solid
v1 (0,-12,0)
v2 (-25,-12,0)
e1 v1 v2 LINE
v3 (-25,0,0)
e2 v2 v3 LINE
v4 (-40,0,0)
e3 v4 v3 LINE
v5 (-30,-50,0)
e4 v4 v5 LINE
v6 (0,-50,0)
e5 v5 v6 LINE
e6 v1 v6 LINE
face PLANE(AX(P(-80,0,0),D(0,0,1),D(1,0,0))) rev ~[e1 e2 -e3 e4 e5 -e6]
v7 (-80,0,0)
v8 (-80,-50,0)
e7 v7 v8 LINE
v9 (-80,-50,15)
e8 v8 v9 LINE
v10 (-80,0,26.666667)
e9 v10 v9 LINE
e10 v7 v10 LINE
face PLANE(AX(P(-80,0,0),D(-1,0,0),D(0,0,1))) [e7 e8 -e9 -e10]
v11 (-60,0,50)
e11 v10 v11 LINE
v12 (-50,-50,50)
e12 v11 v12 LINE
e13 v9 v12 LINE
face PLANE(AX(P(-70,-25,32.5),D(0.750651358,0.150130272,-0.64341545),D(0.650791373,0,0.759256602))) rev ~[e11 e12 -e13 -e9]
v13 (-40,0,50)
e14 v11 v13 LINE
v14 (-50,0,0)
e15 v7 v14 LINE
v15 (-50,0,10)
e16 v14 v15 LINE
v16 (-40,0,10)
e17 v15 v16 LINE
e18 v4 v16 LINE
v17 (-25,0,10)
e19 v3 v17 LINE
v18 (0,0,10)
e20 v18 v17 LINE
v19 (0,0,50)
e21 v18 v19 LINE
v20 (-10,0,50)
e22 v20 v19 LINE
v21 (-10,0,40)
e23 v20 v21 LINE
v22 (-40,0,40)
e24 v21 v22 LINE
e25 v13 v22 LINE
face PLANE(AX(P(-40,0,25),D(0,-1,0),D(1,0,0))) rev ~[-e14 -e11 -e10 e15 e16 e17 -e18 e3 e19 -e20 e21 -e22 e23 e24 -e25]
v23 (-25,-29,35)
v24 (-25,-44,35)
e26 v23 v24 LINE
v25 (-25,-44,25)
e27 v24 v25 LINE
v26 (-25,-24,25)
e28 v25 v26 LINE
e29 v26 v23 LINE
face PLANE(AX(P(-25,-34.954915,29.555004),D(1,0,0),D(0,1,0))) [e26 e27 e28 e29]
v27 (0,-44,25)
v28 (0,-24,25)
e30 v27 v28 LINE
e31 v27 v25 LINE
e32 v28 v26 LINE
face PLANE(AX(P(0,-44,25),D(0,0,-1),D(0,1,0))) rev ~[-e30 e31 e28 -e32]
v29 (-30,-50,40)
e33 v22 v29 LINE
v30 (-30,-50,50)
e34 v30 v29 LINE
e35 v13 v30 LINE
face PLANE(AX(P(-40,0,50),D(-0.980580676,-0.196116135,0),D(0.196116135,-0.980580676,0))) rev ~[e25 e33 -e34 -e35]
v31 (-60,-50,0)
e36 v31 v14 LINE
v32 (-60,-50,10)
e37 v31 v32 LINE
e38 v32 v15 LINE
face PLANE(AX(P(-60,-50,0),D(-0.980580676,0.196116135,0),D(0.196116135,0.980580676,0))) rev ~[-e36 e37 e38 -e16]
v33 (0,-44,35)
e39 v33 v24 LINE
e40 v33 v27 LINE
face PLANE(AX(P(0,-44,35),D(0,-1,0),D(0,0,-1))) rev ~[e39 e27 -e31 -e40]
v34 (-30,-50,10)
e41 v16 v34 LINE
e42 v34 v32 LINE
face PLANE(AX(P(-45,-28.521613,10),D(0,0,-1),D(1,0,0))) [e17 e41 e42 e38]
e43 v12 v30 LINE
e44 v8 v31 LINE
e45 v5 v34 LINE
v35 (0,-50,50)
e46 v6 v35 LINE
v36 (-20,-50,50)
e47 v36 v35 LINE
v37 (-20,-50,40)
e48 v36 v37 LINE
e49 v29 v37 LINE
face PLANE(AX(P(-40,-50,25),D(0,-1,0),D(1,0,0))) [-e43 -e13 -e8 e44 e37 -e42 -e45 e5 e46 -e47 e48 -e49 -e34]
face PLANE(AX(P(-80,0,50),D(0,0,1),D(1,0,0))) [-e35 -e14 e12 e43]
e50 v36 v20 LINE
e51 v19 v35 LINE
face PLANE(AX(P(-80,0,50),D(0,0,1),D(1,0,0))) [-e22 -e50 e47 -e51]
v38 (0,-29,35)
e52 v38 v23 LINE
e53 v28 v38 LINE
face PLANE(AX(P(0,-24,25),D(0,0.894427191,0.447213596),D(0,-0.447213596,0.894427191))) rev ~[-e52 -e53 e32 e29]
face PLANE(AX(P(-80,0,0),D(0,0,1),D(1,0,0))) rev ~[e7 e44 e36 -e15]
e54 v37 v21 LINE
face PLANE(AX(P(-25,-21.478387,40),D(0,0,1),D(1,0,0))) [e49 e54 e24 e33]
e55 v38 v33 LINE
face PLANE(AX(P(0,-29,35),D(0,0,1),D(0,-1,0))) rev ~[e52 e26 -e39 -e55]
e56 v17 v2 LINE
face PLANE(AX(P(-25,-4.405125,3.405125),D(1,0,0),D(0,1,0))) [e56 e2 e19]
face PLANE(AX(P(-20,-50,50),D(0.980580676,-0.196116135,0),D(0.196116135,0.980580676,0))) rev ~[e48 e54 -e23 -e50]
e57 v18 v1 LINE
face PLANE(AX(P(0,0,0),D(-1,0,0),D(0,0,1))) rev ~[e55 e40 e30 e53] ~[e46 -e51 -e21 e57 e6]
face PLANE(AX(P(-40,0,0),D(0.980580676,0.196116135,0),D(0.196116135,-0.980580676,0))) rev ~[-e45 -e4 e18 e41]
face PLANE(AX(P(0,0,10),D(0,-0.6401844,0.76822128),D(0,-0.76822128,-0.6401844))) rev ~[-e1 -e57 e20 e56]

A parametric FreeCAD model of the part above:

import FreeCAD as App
import Part
import Sketcher

V = App.Vector
Q = App.Units.Quantity

doc = App.newDocument("Part")
body = doc.addObject("PartDesign::Body", "Body")

# Sketch on XZ plane
sketch1 = body.newObject("Sketcher::SketchObject", "Sketch")
sketch1.AttachmentSupport = (doc.getObject("XZ_Plane"), [""])
sketch1.MapMode = "FlatFace"
sketch1.addGeometry([
    Part.LineSegment(V(-80, 50, 0), V(-80, 0, 0)),
    Part.LineSegment(V(-80, 0, 0), V(0, 0, 0)),
    Part.LineSegment(V(0, 0, 0), V(0, 50, 0)),
    Part.LineSegment(V(0, 50, 0), V(-80, 50, 0)),
], False)
sketch1.addConstraint([
    Sketcher.Constraint("Coincident", 0, 2, 1, 1),
    Sketcher.Constraint("Coincident", 1, 2, 2, 1),
    Sketcher.Constraint("Coincident", 2, 2, 3, 1),
    Sketcher.Constraint("Coincident", 3, 2, 0, 1),
    Sketcher.Constraint("Vertical", 0),
    Sketcher.Constraint("Horizontal", 1),
    Sketcher.Constraint("Vertical", 2),
    Sketcher.Constraint("Horizontal", 3),
    Sketcher.Constraint("Coincident", 1, 2, -1, 1),
    Sketcher.Constraint("DistanceX", 1, 1, 1, 2, Q("80 mm")),
    Sketcher.Constraint("DistanceY", 0, 2, 0, 1, Q("50 mm")),
])
pad1 = body.newObject("PartDesign::Pad", "Pad")
pad1.Profile = sketch1
pad1.Length = 50

# Sketch on XY plane
sketch2 = body.newObject("Sketcher::SketchObject", "Sketch001")
sketch2.AttachmentSupport = (doc.getObject("XY_Plane"), [""])
sketch2.MapMode = "FlatFace"
sketch2.addGeometry([
    Part.LineSegment(V(-30, -50, 0), V(-60, -50, 0)),
    Part.LineSegment(V(-60, -50, 0), V(-50, 0, 0)),
    Part.LineSegment(V(-50, 0, 0), V(-40, 0, 0)),
    Part.LineSegment(V(-40, 0, 0), V(-30, -50, 0)),
], False)
sketch2.addConstraint([
    Sketcher.Constraint("Coincident", 0, 2, 1, 1),
    Sketcher.Constraint("Coincident", 1, 2, 2, 1),
    Sketcher.Constraint("Coincident", 2, 2, 3, 1),
    Sketcher.Constraint("Coincident", 3, 2, 0, 1),
    Sketcher.Constraint("Horizontal", 0),
    Sketcher.Constraint("Horizontal", 2),
    Sketcher.Constraint("PointOnObject", 1, 2, -1),
    Sketcher.Constraint("Equal", 1, 3),
    Sketcher.Constraint("DistanceX", 0, 2, 0, 1, Q("30 mm")),
    Sketcher.Constraint("DistanceX", 2, 1, 2, 2, Q("10 mm")),
    Sketcher.Constraint("DistanceX", 0, 2, -1, 1, Q("60 mm")),
    Sketcher.Constraint("DistanceY", 0, 2, -1, 1, Q("50 mm")),
])
pocket1 = body.newObject("PartDesign::Pocket", "Pocket")
pocket1.Profile = sketch2
pocket1.Length = 10
pocket1.Reversed = True

# Sketch on XY plane
sketch3 = body.newObject("Sketcher::SketchObject", "Sketch002")
sketch3.AttachmentSupport = (doc.getObject("XY_Plane"), [""])
sketch3.MapMode = "FlatFace"
sketch3.AttachmentOffset = App.Placement(V(0, 0, 50), App.Rotation())
sketch3.addGeometry([
    Part.LineSegment(V(-40, 0, 0), V(-30, -50, 0)),
    Part.LineSegment(V(-30, -50, 0), V(-20, -50, 0)),
    Part.LineSegment(V(-20, -50, 0), V(-10, 0, 0)),
    Part.LineSegment(V(-10, 0, 0), V(-40, 0, 0)),
], False)
sketch3.addConstraint([
    Sketcher.Constraint("Coincident", 0, 2, 1, 1),
    Sketcher.Constraint("Coincident", 1, 2, 2, 1),
    Sketcher.Constraint("Coincident", 2, 2, 3, 1),
    Sketcher.Constraint("Coincident", 3, 2, 0, 1),
    Sketcher.Constraint("Horizontal", 1),
    Sketcher.Constraint("Horizontal", 3),
    Sketcher.Constraint("PointOnObject", 2, 2, -1),
    Sketcher.Constraint("Equal", 0, 2),
    Sketcher.Constraint("DistanceX", 1, 1, 1, 2, Q("10 mm")),
    Sketcher.Constraint("DistanceX", 3, 2, 3, 1, Q("30 mm")),
    Sketcher.Constraint("DistanceX", 0, 2, -1, 1, Q("30 mm")),
    Sketcher.Constraint("DistanceY", 0, 2, -1, 1, Q("50 mm")),
])
pocket2 = body.newObject("PartDesign::Pocket", "Pocket001")
pocket2.Profile = sketch3
pocket2.Length = 10

# Sketch on YZ plane
sketch4 = body.newObject("Sketcher::SketchObject", "Sketch003")
sketch4.AttachmentSupport = (doc.getObject("YZ_Plane"), [""])
sketch4.MapMode = "FlatFace"
sketch4.addGeometry([
    Part.LineSegment(V(-29, 35, 0), V(-44, 35, 0)),
    Part.LineSegment(V(-44, 35, 0), V(-44, 25, 0)),
    Part.LineSegment(V(-44, 25, 0), V(-24, 25, 0)),
    Part.LineSegment(V(-24, 25, 0), V(-29, 35, 0)),
], False)
sketch4.addConstraint([
    Sketcher.Constraint("Coincident", 0, 2, 1, 1),
    Sketcher.Constraint("Coincident", 1, 2, 2, 1),
    Sketcher.Constraint("Coincident", 2, 2, 3, 1),
    Sketcher.Constraint("Coincident", 3, 2, 0, 1),
    Sketcher.Constraint("Horizontal", 0),
    Sketcher.Constraint("Vertical", 1),
    Sketcher.Constraint("Horizontal", 2),
    Sketcher.Constraint("DistanceX", 0, 2, 0, 1, Q("15 mm")),
    Sketcher.Constraint("DistanceX", 2, 1, 2, 2, Q("20 mm")),
    Sketcher.Constraint("DistanceY", 1, 2, 1, 1, Q("10 mm")),
    Sketcher.Constraint("DistanceX", 0, 2, -1, 1, Q("44 mm")),
    Sketcher.Constraint("DistanceY", -1, 1, 0, 2, Q("35 mm")),
])
pocket3 = body.newObject("PartDesign::Pocket", "Pocket002")
pocket3.Profile = sketch4
pocket3.Length = 25

# Sketch on YZ plane
sketch5 = body.newObject("Sketcher::SketchObject", "Sketch004")
sketch5.AttachmentSupport = (doc.getObject("YZ_Plane"), [""])
sketch5.MapMode = "FlatFace"
sketch5.addGeometry([
    Part.LineSegment(V(0, 10, 0), V(-12, 0, 0)),
    Part.LineSegment(V(-12, 0, 0), V(0, 0, 0)),
    Part.LineSegment(V(0, 0, 0), V(0, 10, 0)),
], False)
sketch5.addConstraint([
    Sketcher.Constraint("Coincident", 0, 2, 1, 1),
    Sketcher.Constraint("Coincident", 1, 2, 2, 1),
    Sketcher.Constraint("Coincident", 2, 2, 0, 1),
    Sketcher.Constraint("Horizontal", 1),
    Sketcher.Constraint("Vertical", 2),
    Sketcher.Constraint("Coincident", 1, 2, -1, 1),
    Sketcher.Constraint("DistanceX", 1, 1, 1, 2, Q("12 mm")),
    Sketcher.Constraint("DistanceY", 2, 1, 2, 2, Q("10 mm")),
])
pocket4 = body.newObject("PartDesign::Pocket", "Pocket003")
pocket4.Profile = sketch5
pocket4.Length = 25

# Sketch on XZ plane
sketch6 = body.newObject("Sketcher::SketchObject", "Sketch005")
sketch6.AttachmentSupport = (doc.getObject("XZ_Plane"), [""])
sketch6.MapMode = "FlatFace"
sketch6.AttachmentOffset = App.Placement(V(0, 0, 50), App.Rotation())
sketch6.addGeometry([
    Part.LineSegment(V(-50, 50, 0), V(-80, 50, 0)),
    Part.LineSegment(V(-80, 50, 0), V(-80, 15, 0)),
    Part.LineSegment(V(-80, 15, 0), V(-50, 50, 0)),
], False)
sketch6.addConstraint([
    Sketcher.Constraint("Coincident", 0, 2, 1, 1),
    Sketcher.Constraint("Coincident", 1, 2, 2, 1),
    Sketcher.Constraint("Coincident", 2, 2, 0, 1),
    Sketcher.Constraint("Horizontal", 0),
    Sketcher.Constraint("Vertical", 1),
    Sketcher.Constraint("DistanceX", 0, 2, 0, 1, Q("30 mm")),
    Sketcher.Constraint("DistanceY", 1, 2, 1, 1, Q("35 mm")),
    Sketcher.Constraint("DistanceX", 0, 2, -1, 1, Q("80 mm")),
    Sketcher.Constraint("DistanceY", -1, 1, 0, 2, Q("50 mm")),
])

# Sketch on an angled plane
sketch7 = body.newObject("Sketcher::SketchObject", "Sketch006")
sketch7.Placement = App.Placement(V(-57.692308, -11.538462, 0), App.Rotation(V(0.196116135, -0.980580676, 0), V(0, 0, 1.000000001), V(-0.980580676, -0.196116135, 0), "ZXY"))
sketch7.addGeometry(Part.LineSegment(V(-11.766968, 50, 0), V(39.223227, 50, 0)), False)
sketch7.addConstraint([
    Sketcher.Constraint("Horizontal", 0),
    Sketcher.Constraint("DistanceY", -1, 1, 0, 1, Q("50 mm")),
    Sketcher.Constraint("DistanceX", 0, 1, 0, 2, Q("50.990195 mm")),
    Sketcher.Constraint("DistanceX", 0, 1, -1, 1, Q("11.766968 mm")),
])
doc.recompute()

subtractivepipe = body.newObject("PartDesign::SubtractivePipe", "SubtractivePipe")
subtractivepipe.Profile = sketch6
subtractivepipe.Spine = (sketch7, ["Edge1"])

doc.recompute()
